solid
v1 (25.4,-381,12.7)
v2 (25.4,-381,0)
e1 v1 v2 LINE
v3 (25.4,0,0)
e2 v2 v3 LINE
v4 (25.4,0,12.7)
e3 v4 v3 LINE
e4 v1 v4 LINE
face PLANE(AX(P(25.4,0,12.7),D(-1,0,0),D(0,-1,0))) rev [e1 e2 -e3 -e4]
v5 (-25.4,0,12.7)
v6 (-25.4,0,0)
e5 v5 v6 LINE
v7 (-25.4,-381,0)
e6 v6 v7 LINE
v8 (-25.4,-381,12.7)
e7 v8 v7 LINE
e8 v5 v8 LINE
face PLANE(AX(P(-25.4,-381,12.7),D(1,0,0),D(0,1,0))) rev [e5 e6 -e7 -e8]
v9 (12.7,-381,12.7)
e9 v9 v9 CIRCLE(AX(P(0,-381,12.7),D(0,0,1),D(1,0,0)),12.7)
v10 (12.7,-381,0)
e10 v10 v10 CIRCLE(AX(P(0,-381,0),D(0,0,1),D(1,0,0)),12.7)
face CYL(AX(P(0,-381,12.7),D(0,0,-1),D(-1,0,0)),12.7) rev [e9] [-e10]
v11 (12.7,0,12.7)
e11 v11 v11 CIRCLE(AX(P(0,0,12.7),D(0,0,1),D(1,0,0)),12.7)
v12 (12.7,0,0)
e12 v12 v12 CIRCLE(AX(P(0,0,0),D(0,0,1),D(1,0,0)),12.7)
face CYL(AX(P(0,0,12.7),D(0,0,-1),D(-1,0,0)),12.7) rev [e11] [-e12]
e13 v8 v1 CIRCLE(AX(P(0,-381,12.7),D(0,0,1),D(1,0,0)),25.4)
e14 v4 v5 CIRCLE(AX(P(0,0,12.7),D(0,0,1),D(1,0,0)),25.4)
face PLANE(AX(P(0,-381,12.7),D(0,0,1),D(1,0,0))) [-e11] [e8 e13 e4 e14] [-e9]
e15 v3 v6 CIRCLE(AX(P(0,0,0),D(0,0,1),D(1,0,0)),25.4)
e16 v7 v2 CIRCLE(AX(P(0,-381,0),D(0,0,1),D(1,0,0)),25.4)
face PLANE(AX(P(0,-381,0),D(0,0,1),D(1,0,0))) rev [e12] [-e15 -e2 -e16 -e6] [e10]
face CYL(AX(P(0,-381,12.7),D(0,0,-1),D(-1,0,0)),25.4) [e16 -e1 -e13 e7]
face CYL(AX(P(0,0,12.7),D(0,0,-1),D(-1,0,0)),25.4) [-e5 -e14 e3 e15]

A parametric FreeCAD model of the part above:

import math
import FreeCAD as App
import Part
import Sketcher
from FreeCAD import Vector
Q = App.Units.Quantity

doc = App.newDocument("Part")
body = doc.addObject("PartDesign::Body", "Body")

# Sketch on XY plane
sketch1 = body.newObject("Sketcher::SketchObject", "Sketch")
sketch1.AttachmentSupport = (doc.getObject("XY_Plane"), [""])
sketch1.MapMode = "FlatFace"
sketch1.addGeometry(Part.LineSegment(Vector(-25, 0, 0), Vector(-25, -381, 0)), False)
sketch1.addGeometry(Part.ArcOfCircle(Part.Circle(Vector(0, -381, 0), Vector(0, 0, 1), 25), math.radians(180), math.radians(360)), False)
sketch1.addGeometry(Part.LineSegment(Vector(25, -381, 0), Vector(25, 0, 0)), False)
sketch1.addGeometry(Part.ArcOfCircle(Part.Circle(Vector(0, 0, 0), Vector(0, 0, 1), 25), math.radians(0), math.radians(180)), False)
sketch1.addGeometry(Part.Circle(Vector(0, -381, 0), Vector(0, 0, 1), 13), False)
sketch1.addGeometry(Part.Circle(Vector(0, 0, 0), Vector(0, 0, 1), 13), False)
sketch1.addConstraint(Sketcher.Constraint("Tangent", 0, 2, 1, 1))
sketch1.addConstraint(Sketcher.Constraint("Tangent", 1, 2, 2, 1))
sketch1.addConstraint(Sketcher.Constraint("Tangent", 2, 2, 3, 1))
sketch1.addConstraint(Sketcher.Constraint("Tangent", 3, 2, 0, 1))
sketch1.addConstraint(Sketcher.Constraint("Vertical", 0))
sketch1.addConstraint(Sketcher.Constraint("Vertical", 2))
sketch1.addConstraint(Sketcher.Constraint("Coincident", 3, 3, -1, 1))
sketch1.addConstraint(Sketcher.Constraint("Coincident", 5, 3, -1, 1))
sketch1.addConstraint(Sketcher.Constraint("Coincident", 4, 3, 1, 3))
sketch1.addConstraint(Sketcher.Constraint("Equal", 4, 5))
sketch1.addConstraint(Sketcher.Constraint("Diameter", 4, Q("1 in")))
sketch1.addConstraint(Sketcher.Constraint("Radius", 1, Q("1 in")))
sketch1.addConstraint(Sketcher.Constraint("DistanceY", 0, 2, 0, 1, Q("15 in")))
pad1 = body.newObject("PartDesign::Pad", "Pad")
pad1.Profile = sketch1
pad1.Length = Q("0.5 in")

doc.recompute()
